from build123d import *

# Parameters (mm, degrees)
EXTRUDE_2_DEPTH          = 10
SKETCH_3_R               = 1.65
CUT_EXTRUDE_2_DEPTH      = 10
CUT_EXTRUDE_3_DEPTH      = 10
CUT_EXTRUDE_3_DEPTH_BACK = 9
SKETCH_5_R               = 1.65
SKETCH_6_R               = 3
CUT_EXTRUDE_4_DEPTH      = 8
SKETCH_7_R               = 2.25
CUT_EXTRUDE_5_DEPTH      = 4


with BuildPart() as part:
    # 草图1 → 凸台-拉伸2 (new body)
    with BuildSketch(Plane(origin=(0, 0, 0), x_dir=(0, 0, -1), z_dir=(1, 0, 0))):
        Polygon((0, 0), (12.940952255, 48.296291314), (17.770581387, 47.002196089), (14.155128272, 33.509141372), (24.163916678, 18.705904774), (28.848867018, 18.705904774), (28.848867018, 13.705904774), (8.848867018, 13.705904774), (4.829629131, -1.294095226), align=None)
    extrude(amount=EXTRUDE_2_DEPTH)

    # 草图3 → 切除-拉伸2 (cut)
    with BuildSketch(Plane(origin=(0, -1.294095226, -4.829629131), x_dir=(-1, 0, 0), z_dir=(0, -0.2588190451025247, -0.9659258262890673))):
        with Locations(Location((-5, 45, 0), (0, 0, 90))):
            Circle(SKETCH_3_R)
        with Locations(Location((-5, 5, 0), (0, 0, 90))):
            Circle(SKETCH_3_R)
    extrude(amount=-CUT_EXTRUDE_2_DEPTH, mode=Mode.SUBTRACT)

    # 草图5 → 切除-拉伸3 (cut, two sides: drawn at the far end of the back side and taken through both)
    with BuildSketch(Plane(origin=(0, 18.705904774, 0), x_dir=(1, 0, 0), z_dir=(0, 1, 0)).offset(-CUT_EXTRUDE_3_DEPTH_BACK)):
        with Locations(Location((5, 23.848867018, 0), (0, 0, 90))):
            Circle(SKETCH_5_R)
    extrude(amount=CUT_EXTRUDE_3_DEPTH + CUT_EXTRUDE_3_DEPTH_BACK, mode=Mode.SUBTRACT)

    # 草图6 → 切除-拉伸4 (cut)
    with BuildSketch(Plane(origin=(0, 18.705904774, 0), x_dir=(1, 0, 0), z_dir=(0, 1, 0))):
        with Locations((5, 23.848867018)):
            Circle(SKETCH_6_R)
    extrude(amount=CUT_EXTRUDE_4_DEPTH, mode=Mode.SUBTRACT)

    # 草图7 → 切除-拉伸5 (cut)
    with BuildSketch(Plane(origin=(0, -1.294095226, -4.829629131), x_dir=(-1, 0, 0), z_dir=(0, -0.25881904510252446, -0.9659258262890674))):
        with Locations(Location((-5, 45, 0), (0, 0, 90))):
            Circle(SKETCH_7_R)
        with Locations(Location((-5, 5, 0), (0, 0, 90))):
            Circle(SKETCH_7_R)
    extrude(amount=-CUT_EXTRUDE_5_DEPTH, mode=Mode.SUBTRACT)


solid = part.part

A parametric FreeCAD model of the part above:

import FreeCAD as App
import Part
import Sketcher
Q = App.Units.Quantity

doc = App.newDocument("Part")
body = doc.addObject("PartDesign::Body", "Body")

# Sketch on YZ plane
sketch1 = body.newObject("Sketcher::SketchObject", "Sketch")
sketch1.AttachmentSupport = (doc.getObject("YZ_Plane"), [""])
sketch1.MapMode = "FlatFace"
sketch1.addGeometry([
    Part.LineSegment(App.Vector(48.3, -12.9, 0), App.Vector(0, 0, 0)),  # 0
    Part.LineSegment(App.Vector(0, 0, 0), App.Vector(-1.3, -4.8, 0)),  # 1
    Part.LineSegment(App.Vector(-1.3, -4.8, 0), App.Vector(13.7, -8.8, 0)),  # 2
    Part.LineSegment(App.Vector(13.7, -8.8, 0), App.Vector(13.7, -28.8, 0)),  # 3
    Part.LineSegment(App.Vector(13.7, -28.8, 0), App.Vector(18.7, -28.8, 0)),  # 4
    Part.LineSegment(App.Vector(18.7, -28.8, 0), App.Vector(18.7, -24.2, 0)),  # 5
    Part.LineSegment(App.Vector(18.7, -24.2, 0), App.Vector(33.5, -14.2, 0)),  # 6
    Part.LineSegment(App.Vector(33.5, -14.2, 0), App.Vector(47, -17.8, 0)),  # 7
    Part.LineSegment(App.Vector(47, -17.8, 0), App.Vector(48.3, -12.9, 0)),  # 8
], False)
sketch1.addConstraint([
    Sketcher.Constraint("Coincident", 0, 2, 1, 1),
    Sketcher.Constraint("Coincident", 1, 2, 2, 1),
    Sketcher.Constraint("Coincident", 2, 2, 3, 1),
    Sketcher.Constraint("Coincident", 3, 2, 4, 1),
    Sketcher.Constraint("Coincident", 4, 2, 5, 1),
    Sketcher.Constraint("Coincident", 5, 2, 6, 1),
    Sketcher.Constraint("Coincident", 6, 2, 7, 1),
    Sketcher.Constraint("Coincident", 7, 2, 8, 1),
    Sketcher.Constraint("Coincident", 8, 2, 0, 1),
    Sketcher.Constraint("Vertical", 3),
    Sketcher.Constraint("Horizontal", 4),
    Sketcher.Constraint("Vertical", 5),
    Sketcher.Constraint("Coincident", 0, 2, -1, 1),
    Sketcher.Constraint("Perpendicular", 0, 1),
    Sketcher.Constraint("Perpendicular", 1, 2),
    Sketcher.Constraint("Parallel", 2, 7),
    Sketcher.Constraint("Perpendicular", 7, 8),
    Sketcher.Constraint("Equal", 1, 8),
    Sketcher.Constraint("DistanceX", 4, 1, 4, 2, Q("5 mm")),
    Sketcher.Constraint("DistanceY", 3, 2, 3, 1, Q("20 mm")),
    Sketcher.Constraint("Angle", 0, Q("165 deg")),
    Sketcher.Constraint("Distance", 0, Q("50 mm")),
    Sketcher.Constraint("Distance", 1, Q("5 mm")),
    Sketcher.Constraint("DistanceX", 1, 2, 2, 2, Q("15 mm")),
    Sketcher.Constraint("DistanceY", 5, 1, 5, 2, Q("4.68495 mm")),
    Sketcher.Constraint("DistanceY", 6, 2, 1, 2, Q("9.325499 mm")),
])
pad1 = body.newObject("PartDesign::Pad", "Pad")
pad1.Profile = sketch1
pad1.Length = 10

# Sketch on an angled plane
sketch2 = body.newObject("Sketcher::SketchObject", "Sketch001")
sketch2.Placement = App.Placement(App.Vector(0, -1.294095, -4.829629), App.Rotation(App.Vector(-1, 0, 0), App.Vector(0, 0.965925826, -0.258819045), App.Vector(0, -0.258819045, -0.965925826), "ZXY"))
sketch2.addGeometry([
    Part.Circle(App.Vector(-5, 45, 0), App.Vector(0, 0, 1), 1.6),
    Part.Circle(App.Vector(-5, 5, 0), App.Vector(0, 0, 1), 1.6),
], False)
sketch2.addConstraint([
    Sketcher.Constraint("Equal", 0, 1),
    Sketcher.Constraint("Vertical", 0, 3, 1, 3),
    Sketcher.Constraint("Diameter", 0, Q("3.3 mm")),
    Sketcher.Constraint("DistanceX", 0, 3, -1, 1, Q("5 mm")),
    Sketcher.Constraint("DistanceY", -1, 1, 0, 3, Q("45 mm")),
    Sketcher.Constraint("DistanceY", -1, 1, 1, 3, Q("5 mm")),
])
pocket1 = body.newObject("PartDesign::Pocket", "Pocket")
pocket1.Profile = sketch2
pocket1.Length = 10

# Sketch on XZ plane
sketch3 = body.newObject("Sketcher::SketchObject", "Sketch002")
sketch3.AttachmentSupport = (doc.getObject("XZ_Plane"), [""])
sketch3.MapMode = "FlatFace"
sketch3.AttachmentOffset = App.Placement(App.Vector(0, 0, -18.705905), App.Rotation())
sketch3.addGeometry(Part.Circle(App.Vector(5, -23.8, 0), App.Vector(0, 0, 1), 1.6), False)
sketch3.addConstraint([
    Sketcher.Constraint("Diameter", 0, Q("3.3 mm")),
    Sketcher.Constraint("DistanceX", -1, 1, 0, 3, Q("5 mm")),
    Sketcher.Constraint("DistanceY", 0, 3, -1, 1, Q("23.848867 mm")),
])
pocket2 = body.newObject("PartDesign::Pocket", "Pocket001")
pocket2.Profile = sketch3
pocket2.Type = "ThroughAll"
pocket2.Midplane = True

# Sketch on XZ plane
sketch4 = body.newObject("Sketcher::SketchObject", "Sketch003")
sketch4.AttachmentSupport = (doc.getObject("XZ_Plane"), [""])
sketch4.MapMode = "FlatFace"
sketch4.AttachmentOffset = App.Placement(App.Vector(0, 0, -18.705905), App.Rotation())
sketch4.addGeometry(Part.Circle(App.Vector(5, -23.8, 0), App.Vector(0, 0, 1), 3), False)
sketch4.addConstraint([
    Sketcher.Constraint("Diameter", 0, Q("6 mm")),
    Sketcher.Constraint("DistanceX", -1, 1, 0, 3, Q("5 mm")),
    Sketcher.Constraint("DistanceY", 0, 3, -1, 1, Q("23.848867 mm")),
])
pocket3 = body.newObject("PartDesign::Pocket", "Pocket002")
pocket3.Profile = sketch4
pocket3.Length = 8

# Sketch on an angled plane
sketch5 = body.newObject("Sketcher::SketchObject", "Sketch004")
sketch5.Placement = App.Placement(App.Vector(0, -1.294095, -4.829629), App.Rotation(App.Vector(-1, 0, 0), App.Vector(0, 0.965925826, -0.258819045), App.Vector(0, -0.258819045, -0.965925826), "ZXY"))
sketch5.addGeometry([
    Part.Circle(App.Vector(-5, 45, 0), App.Vector(0, 0, 1), 2.2),
    Part.Circle(App.Vector(-5, 5, 0), App.Vector(0, 0, 1), 2.2),
], False)
sketch5.addConstraint([
    Sketcher.Constraint("Equal", 0, 1),
    Sketcher.Constraint("Vertical", 0, 3, 1, 3),
    Sketcher.Constraint("Diameter", 0, Q("4.5 mm")),
    Sketcher.Constraint("DistanceX", 0, 3, -1, 1, Q("5 mm")),
    Sketcher.Constraint("DistanceY", -1, 1, 0, 3, Q("45 mm")),
    Sketcher.Constraint("DistanceY", -1, 1, 1, 3, Q("5 mm")),
])
pocket4 = body.newObject("PartDesign::Pocket", "Pocket003")
pocket4.Profile = sketch5
pocket4.Length = 4

doc.recompute()
